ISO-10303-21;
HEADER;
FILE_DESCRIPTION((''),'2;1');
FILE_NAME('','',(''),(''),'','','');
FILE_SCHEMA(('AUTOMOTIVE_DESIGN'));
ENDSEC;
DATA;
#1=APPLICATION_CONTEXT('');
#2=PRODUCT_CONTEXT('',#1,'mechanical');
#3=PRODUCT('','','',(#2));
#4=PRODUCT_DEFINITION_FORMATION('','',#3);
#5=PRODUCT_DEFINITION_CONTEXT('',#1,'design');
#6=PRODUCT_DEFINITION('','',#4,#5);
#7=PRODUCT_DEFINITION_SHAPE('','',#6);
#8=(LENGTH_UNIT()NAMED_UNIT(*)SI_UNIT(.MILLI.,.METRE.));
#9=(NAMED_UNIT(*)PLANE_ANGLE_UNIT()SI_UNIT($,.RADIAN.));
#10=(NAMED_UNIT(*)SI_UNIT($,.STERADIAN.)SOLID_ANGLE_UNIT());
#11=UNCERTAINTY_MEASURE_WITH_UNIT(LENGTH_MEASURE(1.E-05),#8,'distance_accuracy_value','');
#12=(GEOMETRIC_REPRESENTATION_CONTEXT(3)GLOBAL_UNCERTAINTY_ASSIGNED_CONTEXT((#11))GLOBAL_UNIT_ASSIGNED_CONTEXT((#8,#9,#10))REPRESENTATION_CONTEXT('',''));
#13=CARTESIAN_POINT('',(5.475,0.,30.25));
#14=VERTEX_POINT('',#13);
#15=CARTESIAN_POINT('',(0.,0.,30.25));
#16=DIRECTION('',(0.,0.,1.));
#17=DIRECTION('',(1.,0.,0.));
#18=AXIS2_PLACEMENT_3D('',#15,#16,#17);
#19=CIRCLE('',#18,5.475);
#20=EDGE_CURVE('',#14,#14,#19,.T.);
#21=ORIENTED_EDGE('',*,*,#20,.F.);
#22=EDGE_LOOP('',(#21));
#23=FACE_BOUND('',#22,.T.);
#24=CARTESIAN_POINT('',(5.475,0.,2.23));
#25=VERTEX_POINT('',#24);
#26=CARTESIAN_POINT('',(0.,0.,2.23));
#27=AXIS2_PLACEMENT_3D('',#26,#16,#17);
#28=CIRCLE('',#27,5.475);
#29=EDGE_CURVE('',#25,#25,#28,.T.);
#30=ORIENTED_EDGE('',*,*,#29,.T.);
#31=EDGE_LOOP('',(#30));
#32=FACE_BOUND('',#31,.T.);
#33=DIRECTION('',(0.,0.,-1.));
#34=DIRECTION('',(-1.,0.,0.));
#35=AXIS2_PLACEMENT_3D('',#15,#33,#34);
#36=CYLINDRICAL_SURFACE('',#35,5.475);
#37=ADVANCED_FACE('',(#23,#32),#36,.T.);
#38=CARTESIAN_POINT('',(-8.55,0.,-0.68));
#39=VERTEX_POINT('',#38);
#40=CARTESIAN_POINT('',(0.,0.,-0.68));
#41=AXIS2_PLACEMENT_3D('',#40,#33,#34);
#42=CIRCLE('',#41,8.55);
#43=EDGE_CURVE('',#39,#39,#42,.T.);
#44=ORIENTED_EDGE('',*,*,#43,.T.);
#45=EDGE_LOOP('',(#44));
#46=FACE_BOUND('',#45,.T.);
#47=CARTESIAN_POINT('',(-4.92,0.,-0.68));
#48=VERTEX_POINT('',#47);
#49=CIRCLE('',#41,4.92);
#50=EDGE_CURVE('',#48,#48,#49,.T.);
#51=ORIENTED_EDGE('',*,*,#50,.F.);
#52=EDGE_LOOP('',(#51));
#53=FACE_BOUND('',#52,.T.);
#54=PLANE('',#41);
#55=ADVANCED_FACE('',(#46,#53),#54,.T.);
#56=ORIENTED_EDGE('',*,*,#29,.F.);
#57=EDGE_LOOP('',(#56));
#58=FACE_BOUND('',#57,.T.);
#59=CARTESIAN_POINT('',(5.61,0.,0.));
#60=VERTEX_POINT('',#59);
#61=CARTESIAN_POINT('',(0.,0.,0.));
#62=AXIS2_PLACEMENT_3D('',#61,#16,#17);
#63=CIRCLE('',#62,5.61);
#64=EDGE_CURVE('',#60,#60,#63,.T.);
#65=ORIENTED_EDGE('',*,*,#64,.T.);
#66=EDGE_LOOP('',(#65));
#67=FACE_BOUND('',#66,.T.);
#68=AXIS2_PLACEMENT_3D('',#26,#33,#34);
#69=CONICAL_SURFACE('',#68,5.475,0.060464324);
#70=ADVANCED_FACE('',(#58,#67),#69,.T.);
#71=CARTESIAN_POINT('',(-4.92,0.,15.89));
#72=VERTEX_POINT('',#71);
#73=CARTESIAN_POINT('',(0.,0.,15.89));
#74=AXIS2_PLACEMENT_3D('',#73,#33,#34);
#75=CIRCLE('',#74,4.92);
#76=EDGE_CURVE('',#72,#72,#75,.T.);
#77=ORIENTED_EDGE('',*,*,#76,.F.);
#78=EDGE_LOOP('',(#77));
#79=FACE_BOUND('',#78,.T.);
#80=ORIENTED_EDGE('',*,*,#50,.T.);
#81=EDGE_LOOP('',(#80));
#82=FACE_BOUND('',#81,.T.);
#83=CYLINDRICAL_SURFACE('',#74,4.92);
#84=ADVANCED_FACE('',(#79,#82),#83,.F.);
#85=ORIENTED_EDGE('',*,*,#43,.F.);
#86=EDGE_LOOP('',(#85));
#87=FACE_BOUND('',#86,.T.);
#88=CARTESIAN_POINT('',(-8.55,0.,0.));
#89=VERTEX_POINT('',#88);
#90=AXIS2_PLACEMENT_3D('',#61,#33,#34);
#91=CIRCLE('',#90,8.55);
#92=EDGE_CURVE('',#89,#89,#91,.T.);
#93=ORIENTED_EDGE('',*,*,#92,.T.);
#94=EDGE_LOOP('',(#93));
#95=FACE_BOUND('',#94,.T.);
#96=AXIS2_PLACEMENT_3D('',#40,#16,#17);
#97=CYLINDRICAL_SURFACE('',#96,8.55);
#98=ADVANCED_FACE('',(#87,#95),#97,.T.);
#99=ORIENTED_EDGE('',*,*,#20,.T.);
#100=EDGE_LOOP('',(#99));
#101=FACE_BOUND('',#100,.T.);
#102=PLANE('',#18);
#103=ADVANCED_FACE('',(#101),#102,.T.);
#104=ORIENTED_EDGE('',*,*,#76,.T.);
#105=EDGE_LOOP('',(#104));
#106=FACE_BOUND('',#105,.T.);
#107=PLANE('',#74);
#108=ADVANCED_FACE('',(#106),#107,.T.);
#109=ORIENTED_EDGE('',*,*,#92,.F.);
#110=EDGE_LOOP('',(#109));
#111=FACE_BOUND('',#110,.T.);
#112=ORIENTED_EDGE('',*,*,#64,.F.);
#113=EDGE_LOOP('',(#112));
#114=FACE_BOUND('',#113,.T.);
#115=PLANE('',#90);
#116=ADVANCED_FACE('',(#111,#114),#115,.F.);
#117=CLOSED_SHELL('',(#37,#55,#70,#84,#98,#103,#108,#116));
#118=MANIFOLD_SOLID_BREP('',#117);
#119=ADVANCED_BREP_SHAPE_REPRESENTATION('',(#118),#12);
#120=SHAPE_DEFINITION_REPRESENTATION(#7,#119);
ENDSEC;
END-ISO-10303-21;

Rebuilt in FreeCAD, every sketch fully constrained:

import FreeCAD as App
import Part
import Sketcher
from FreeCAD import Vector

doc = App.newDocument("Part")
params = doc.addObject("Spreadsheet::Sheet", "Params")
for row, (alias, value) in enumerate([
    ("sketch1_diameter", "10.95 mm"),
    ("sketch2_diameter", "11.22 mm"),
    ("sketch3_diameter", "10.95 mm"),
    ("sketch4_diameter", "10.95 mm"),
    ("sketch5_diameter", "17.1 mm"),
    ("pad1_length", "0.68 mm"),
    ("sketch6_diameter", "9.84 mm"),
    ("pocket1_length", "16.57 mm"),
], start=1):
    params.set(f"A{row}", alias)
    params.set(f"B{row}", "=" + value)
    params.setAlias(f"B{row}", alias)

body = doc.addObject("PartDesign::Body", "Body")

sketch1 = body.newObject("Sketcher::SketchObject", "Sketch")
sketch1.AttachmentSupport = (doc.getObject("XY_Plane"), [""])
sketch1.MapMode = "FlatFace"
sketch1.AttachmentOffset = App.Placement(Vector(0, 0, 2.23), App.Rotation())
sketch1.addGeometry(Part.Circle(Vector(0, 0, 0), Vector(0, 0, 1), 5), False)
sketch1.addConstraint([
    Sketcher.Constraint("Coincident", 0, 3, -1, 1),
    Sketcher.Constraint("Diameter", 0, 10.95),
])
sketch1.setExpression("Constraints[1]", "Params.sketch1_diameter")

sketch2 = body.newObject("Sketcher::SketchObject", "Sketch001")
sketch2.AttachmentSupport = (doc.getObject("XY_Plane"), [""])
sketch2.MapMode = "FlatFace"
sketch2.addGeometry(Part.Circle(Vector(0, 0, 0), Vector(0, 0, 1), 6), False)
sketch2.addConstraint([
    Sketcher.Constraint("Coincident", 0, 3, -1, 1),
    Sketcher.Constraint("Diameter", 0, 11.22),
])
sketch2.setExpression("Constraints[1]", "Params.sketch2_diameter")

additiveloft = body.newObject("PartDesign::AdditiveLoft", "AdditiveLoft")
additiveloft.Profile = sketch1
additiveloft.Sections = [sketch2]

sketch3 = body.newObject("Sketcher::SketchObject", "Sketch002")
sketch3.AttachmentSupport = (doc.getObject("XY_Plane"), [""])
sketch3.MapMode = "FlatFace"
sketch3.AttachmentOffset = App.Placement(Vector(0, 0, 30.25), App.Rotation())
sketch3.addGeometry(Part.Circle(Vector(0, 0, 0), Vector(0, 0, 1), 5), False)
sketch3.addConstraint([
    Sketcher.Constraint("Coincident", 0, 3, -1, 1),
    Sketcher.Constraint("Diameter", 0, 10.95),
])
sketch3.setExpression("Constraints[1]", "Params.sketch3_diameter")

sketch4 = body.newObject("Sketcher::SketchObject", "Sketch003")
sketch4.AttachmentSupport = (doc.getObject("XY_Plane"), [""])
sketch4.MapMode = "FlatFace"
sketch4.AttachmentOffset = App.Placement(Vector(0, 0, 2.23), App.Rotation())
sketch4.addGeometry(Part.Circle(Vector(0, 0, 0), Vector(0, 0, 1), 5), False)
sketch4.addConstraint([
    Sketcher.Constraint("Coincident", 0, 3, -1, 1),
    Sketcher.Constraint("Diameter", 0, 10.95),
])
sketch4.setExpression("Constraints[1]", "Params.sketch4_diameter")

additiveloft2 = body.newObject("PartDesign::AdditiveLoft", "AdditiveLoft001")
additiveloft2.Profile = sketch3
additiveloft2.Sections = [sketch4]

sketch5 = body.newObject("Sketcher::SketchObject", "Sketch004")
sketch5.AttachmentSupport = (doc.getObject("XY_Plane"), [""])
sketch5.MapMode = "FlatFace"
sketch5.addGeometry(Part.Circle(Vector(0, 0, 0), Vector(0, 0, 1), 9), False)
sketch5.addConstraint([
    Sketcher.Constraint("Coincident", 0, 3, -1, 1),
    Sketcher.Constraint("Diameter", 0, 17.1),
])
sketch5.setExpression("Constraints[1]", "Params.sketch5_diameter")
pad1 = body.newObject("PartDesign::Pad", "Pad")
pad1.Profile = sketch5
pad1.setExpression("Length", "Params.pad1_length")
pad1.Reversed = True

sketch6 = body.newObject("Sketcher::SketchObject", "Sketch005")
sketch6.AttachmentSupport = (doc.getObject("XY_Plane"), [""])
sketch6.MapMode = "FlatFace"
sketch6.AttachmentOffset = App.Placement(Vector(0, 0, -0.68), App.Rotation())
sketch6.addGeometry(Part.Circle(Vector(0, 0, 0), Vector(0, 0, 1), 4.9), False)
sketch6.addConstraint([
    Sketcher.Constraint("Coincident", 0, 3, -1, 1),
    Sketcher.Constraint("Diameter", 0, 9.84),
])
sketch6.setExpression("Constraints[1]", "Params.sketch6_diameter")
pocket1 = body.newObject("PartDesign::Pocket", "Pocket")
pocket1.Profile = sketch6
pocket1.setExpression("Length", "Params.pocket1_length")
pocket1.Reversed = True

doc.recompute()
